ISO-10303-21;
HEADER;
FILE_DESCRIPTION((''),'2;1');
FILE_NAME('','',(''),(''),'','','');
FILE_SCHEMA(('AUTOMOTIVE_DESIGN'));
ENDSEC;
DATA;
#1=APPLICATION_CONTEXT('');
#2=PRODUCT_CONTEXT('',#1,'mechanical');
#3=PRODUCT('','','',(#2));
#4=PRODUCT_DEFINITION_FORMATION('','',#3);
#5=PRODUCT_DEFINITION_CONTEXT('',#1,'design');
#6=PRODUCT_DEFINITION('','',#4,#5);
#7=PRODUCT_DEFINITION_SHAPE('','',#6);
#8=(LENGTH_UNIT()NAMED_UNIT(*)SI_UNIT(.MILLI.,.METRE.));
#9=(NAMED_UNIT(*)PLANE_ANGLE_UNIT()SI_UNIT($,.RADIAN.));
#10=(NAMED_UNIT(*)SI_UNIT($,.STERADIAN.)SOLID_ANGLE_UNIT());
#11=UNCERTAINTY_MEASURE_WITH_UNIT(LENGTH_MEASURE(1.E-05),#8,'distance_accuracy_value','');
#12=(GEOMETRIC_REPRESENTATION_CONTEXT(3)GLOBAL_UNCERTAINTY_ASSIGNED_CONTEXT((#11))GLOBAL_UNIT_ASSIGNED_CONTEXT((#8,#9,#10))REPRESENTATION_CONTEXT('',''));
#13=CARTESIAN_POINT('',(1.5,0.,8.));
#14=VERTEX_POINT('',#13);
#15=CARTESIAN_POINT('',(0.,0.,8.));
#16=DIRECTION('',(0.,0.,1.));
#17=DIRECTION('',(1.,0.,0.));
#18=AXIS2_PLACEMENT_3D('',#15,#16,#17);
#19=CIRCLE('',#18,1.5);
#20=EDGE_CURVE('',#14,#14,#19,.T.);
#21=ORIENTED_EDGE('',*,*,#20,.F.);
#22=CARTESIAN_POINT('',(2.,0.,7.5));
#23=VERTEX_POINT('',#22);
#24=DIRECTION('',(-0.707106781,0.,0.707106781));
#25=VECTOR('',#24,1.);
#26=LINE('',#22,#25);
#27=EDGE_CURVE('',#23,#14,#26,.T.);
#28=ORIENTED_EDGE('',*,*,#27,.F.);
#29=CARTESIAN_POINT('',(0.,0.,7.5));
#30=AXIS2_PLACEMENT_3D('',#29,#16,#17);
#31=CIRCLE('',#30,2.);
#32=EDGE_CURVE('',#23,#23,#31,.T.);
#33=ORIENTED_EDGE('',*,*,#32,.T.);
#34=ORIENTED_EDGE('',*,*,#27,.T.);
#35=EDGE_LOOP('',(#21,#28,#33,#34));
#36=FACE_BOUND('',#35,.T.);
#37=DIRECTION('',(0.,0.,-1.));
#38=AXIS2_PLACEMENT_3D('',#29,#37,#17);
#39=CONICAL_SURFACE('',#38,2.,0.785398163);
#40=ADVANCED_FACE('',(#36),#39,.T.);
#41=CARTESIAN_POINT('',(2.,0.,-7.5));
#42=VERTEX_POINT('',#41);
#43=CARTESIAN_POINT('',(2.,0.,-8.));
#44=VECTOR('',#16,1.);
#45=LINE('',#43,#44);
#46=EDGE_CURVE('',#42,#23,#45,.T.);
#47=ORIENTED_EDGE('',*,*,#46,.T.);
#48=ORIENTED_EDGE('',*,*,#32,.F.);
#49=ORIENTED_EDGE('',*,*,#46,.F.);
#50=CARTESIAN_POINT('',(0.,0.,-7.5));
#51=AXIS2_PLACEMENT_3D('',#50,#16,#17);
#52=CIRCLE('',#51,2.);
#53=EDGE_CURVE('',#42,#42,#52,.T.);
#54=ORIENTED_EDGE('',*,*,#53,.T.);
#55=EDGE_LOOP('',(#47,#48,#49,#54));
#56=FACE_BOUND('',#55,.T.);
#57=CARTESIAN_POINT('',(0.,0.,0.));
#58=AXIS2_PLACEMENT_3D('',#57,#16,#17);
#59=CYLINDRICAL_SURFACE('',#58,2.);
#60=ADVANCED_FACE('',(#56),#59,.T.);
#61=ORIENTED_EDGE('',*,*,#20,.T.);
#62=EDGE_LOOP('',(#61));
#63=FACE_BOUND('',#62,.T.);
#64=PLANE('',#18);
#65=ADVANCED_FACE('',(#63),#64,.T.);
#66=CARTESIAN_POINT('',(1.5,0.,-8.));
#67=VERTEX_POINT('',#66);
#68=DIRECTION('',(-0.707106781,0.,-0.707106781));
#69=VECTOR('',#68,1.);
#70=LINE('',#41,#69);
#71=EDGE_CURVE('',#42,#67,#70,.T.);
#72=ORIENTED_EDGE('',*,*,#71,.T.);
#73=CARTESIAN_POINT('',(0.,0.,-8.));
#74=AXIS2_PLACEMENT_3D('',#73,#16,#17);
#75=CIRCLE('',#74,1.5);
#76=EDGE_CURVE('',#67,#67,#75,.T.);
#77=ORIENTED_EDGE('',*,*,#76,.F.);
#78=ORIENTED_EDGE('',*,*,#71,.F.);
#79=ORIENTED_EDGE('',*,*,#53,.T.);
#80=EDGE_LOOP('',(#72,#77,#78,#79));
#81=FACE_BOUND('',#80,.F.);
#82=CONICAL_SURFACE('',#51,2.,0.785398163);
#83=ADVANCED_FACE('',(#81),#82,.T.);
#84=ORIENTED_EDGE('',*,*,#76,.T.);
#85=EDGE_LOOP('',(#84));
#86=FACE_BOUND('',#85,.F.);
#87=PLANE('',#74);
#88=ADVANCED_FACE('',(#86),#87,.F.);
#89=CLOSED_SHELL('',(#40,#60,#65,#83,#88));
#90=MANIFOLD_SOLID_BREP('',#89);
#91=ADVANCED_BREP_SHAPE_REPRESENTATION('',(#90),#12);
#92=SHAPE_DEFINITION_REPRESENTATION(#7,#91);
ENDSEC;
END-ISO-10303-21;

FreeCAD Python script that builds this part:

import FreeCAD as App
import Part
import Sketcher

V = App.Vector
Q = App.Units.Quantity


def edges_at(feature, points):
    """Names of the edges that pass closest to the given points."""
    edges = feature.Shape.Edges
    near = lambda p: min(range(len(edges)), key=lambda i: edges[i].distToShape(Part.Vertex(*p))[0])
    return sorted({f"Edge{near(p) + 1}" for p in points})

doc = App.newDocument("Part")
body = doc.addObject("PartDesign::Body", "Body")

sketch1 = body.newObject("Sketcher::SketchObject", "Sketch")
sketch1.AttachmentSupport = (doc.getObject("XY_Plane"), [""])
sketch1.MapMode = "FlatFace"
sketch1.addGeometry(Part.Circle(V(0, 0, 0), V(0, 0, 1), 2), False)
sketch1.addConstraint(Sketcher.Constraint("Coincident", 0, 3, -1, 1))
sketch1.addConstraint(Sketcher.Constraint("Diameter", 0, Q("4 mm")))
pad1 = body.newObject("PartDesign::Pad", "Pad")
pad1.Profile = sketch1
pad1.Length = 16
pad1.Midplane = True
doc.recompute()

chamfer = body.newObject("PartDesign::Chamfer", "Chamfer")
chamfer.Base = (pad1, edges_at(pad1, [(-2, 0, 8), (-2, 0, -8)]))
chamfer.Size = 0.5

doc.recompute()
